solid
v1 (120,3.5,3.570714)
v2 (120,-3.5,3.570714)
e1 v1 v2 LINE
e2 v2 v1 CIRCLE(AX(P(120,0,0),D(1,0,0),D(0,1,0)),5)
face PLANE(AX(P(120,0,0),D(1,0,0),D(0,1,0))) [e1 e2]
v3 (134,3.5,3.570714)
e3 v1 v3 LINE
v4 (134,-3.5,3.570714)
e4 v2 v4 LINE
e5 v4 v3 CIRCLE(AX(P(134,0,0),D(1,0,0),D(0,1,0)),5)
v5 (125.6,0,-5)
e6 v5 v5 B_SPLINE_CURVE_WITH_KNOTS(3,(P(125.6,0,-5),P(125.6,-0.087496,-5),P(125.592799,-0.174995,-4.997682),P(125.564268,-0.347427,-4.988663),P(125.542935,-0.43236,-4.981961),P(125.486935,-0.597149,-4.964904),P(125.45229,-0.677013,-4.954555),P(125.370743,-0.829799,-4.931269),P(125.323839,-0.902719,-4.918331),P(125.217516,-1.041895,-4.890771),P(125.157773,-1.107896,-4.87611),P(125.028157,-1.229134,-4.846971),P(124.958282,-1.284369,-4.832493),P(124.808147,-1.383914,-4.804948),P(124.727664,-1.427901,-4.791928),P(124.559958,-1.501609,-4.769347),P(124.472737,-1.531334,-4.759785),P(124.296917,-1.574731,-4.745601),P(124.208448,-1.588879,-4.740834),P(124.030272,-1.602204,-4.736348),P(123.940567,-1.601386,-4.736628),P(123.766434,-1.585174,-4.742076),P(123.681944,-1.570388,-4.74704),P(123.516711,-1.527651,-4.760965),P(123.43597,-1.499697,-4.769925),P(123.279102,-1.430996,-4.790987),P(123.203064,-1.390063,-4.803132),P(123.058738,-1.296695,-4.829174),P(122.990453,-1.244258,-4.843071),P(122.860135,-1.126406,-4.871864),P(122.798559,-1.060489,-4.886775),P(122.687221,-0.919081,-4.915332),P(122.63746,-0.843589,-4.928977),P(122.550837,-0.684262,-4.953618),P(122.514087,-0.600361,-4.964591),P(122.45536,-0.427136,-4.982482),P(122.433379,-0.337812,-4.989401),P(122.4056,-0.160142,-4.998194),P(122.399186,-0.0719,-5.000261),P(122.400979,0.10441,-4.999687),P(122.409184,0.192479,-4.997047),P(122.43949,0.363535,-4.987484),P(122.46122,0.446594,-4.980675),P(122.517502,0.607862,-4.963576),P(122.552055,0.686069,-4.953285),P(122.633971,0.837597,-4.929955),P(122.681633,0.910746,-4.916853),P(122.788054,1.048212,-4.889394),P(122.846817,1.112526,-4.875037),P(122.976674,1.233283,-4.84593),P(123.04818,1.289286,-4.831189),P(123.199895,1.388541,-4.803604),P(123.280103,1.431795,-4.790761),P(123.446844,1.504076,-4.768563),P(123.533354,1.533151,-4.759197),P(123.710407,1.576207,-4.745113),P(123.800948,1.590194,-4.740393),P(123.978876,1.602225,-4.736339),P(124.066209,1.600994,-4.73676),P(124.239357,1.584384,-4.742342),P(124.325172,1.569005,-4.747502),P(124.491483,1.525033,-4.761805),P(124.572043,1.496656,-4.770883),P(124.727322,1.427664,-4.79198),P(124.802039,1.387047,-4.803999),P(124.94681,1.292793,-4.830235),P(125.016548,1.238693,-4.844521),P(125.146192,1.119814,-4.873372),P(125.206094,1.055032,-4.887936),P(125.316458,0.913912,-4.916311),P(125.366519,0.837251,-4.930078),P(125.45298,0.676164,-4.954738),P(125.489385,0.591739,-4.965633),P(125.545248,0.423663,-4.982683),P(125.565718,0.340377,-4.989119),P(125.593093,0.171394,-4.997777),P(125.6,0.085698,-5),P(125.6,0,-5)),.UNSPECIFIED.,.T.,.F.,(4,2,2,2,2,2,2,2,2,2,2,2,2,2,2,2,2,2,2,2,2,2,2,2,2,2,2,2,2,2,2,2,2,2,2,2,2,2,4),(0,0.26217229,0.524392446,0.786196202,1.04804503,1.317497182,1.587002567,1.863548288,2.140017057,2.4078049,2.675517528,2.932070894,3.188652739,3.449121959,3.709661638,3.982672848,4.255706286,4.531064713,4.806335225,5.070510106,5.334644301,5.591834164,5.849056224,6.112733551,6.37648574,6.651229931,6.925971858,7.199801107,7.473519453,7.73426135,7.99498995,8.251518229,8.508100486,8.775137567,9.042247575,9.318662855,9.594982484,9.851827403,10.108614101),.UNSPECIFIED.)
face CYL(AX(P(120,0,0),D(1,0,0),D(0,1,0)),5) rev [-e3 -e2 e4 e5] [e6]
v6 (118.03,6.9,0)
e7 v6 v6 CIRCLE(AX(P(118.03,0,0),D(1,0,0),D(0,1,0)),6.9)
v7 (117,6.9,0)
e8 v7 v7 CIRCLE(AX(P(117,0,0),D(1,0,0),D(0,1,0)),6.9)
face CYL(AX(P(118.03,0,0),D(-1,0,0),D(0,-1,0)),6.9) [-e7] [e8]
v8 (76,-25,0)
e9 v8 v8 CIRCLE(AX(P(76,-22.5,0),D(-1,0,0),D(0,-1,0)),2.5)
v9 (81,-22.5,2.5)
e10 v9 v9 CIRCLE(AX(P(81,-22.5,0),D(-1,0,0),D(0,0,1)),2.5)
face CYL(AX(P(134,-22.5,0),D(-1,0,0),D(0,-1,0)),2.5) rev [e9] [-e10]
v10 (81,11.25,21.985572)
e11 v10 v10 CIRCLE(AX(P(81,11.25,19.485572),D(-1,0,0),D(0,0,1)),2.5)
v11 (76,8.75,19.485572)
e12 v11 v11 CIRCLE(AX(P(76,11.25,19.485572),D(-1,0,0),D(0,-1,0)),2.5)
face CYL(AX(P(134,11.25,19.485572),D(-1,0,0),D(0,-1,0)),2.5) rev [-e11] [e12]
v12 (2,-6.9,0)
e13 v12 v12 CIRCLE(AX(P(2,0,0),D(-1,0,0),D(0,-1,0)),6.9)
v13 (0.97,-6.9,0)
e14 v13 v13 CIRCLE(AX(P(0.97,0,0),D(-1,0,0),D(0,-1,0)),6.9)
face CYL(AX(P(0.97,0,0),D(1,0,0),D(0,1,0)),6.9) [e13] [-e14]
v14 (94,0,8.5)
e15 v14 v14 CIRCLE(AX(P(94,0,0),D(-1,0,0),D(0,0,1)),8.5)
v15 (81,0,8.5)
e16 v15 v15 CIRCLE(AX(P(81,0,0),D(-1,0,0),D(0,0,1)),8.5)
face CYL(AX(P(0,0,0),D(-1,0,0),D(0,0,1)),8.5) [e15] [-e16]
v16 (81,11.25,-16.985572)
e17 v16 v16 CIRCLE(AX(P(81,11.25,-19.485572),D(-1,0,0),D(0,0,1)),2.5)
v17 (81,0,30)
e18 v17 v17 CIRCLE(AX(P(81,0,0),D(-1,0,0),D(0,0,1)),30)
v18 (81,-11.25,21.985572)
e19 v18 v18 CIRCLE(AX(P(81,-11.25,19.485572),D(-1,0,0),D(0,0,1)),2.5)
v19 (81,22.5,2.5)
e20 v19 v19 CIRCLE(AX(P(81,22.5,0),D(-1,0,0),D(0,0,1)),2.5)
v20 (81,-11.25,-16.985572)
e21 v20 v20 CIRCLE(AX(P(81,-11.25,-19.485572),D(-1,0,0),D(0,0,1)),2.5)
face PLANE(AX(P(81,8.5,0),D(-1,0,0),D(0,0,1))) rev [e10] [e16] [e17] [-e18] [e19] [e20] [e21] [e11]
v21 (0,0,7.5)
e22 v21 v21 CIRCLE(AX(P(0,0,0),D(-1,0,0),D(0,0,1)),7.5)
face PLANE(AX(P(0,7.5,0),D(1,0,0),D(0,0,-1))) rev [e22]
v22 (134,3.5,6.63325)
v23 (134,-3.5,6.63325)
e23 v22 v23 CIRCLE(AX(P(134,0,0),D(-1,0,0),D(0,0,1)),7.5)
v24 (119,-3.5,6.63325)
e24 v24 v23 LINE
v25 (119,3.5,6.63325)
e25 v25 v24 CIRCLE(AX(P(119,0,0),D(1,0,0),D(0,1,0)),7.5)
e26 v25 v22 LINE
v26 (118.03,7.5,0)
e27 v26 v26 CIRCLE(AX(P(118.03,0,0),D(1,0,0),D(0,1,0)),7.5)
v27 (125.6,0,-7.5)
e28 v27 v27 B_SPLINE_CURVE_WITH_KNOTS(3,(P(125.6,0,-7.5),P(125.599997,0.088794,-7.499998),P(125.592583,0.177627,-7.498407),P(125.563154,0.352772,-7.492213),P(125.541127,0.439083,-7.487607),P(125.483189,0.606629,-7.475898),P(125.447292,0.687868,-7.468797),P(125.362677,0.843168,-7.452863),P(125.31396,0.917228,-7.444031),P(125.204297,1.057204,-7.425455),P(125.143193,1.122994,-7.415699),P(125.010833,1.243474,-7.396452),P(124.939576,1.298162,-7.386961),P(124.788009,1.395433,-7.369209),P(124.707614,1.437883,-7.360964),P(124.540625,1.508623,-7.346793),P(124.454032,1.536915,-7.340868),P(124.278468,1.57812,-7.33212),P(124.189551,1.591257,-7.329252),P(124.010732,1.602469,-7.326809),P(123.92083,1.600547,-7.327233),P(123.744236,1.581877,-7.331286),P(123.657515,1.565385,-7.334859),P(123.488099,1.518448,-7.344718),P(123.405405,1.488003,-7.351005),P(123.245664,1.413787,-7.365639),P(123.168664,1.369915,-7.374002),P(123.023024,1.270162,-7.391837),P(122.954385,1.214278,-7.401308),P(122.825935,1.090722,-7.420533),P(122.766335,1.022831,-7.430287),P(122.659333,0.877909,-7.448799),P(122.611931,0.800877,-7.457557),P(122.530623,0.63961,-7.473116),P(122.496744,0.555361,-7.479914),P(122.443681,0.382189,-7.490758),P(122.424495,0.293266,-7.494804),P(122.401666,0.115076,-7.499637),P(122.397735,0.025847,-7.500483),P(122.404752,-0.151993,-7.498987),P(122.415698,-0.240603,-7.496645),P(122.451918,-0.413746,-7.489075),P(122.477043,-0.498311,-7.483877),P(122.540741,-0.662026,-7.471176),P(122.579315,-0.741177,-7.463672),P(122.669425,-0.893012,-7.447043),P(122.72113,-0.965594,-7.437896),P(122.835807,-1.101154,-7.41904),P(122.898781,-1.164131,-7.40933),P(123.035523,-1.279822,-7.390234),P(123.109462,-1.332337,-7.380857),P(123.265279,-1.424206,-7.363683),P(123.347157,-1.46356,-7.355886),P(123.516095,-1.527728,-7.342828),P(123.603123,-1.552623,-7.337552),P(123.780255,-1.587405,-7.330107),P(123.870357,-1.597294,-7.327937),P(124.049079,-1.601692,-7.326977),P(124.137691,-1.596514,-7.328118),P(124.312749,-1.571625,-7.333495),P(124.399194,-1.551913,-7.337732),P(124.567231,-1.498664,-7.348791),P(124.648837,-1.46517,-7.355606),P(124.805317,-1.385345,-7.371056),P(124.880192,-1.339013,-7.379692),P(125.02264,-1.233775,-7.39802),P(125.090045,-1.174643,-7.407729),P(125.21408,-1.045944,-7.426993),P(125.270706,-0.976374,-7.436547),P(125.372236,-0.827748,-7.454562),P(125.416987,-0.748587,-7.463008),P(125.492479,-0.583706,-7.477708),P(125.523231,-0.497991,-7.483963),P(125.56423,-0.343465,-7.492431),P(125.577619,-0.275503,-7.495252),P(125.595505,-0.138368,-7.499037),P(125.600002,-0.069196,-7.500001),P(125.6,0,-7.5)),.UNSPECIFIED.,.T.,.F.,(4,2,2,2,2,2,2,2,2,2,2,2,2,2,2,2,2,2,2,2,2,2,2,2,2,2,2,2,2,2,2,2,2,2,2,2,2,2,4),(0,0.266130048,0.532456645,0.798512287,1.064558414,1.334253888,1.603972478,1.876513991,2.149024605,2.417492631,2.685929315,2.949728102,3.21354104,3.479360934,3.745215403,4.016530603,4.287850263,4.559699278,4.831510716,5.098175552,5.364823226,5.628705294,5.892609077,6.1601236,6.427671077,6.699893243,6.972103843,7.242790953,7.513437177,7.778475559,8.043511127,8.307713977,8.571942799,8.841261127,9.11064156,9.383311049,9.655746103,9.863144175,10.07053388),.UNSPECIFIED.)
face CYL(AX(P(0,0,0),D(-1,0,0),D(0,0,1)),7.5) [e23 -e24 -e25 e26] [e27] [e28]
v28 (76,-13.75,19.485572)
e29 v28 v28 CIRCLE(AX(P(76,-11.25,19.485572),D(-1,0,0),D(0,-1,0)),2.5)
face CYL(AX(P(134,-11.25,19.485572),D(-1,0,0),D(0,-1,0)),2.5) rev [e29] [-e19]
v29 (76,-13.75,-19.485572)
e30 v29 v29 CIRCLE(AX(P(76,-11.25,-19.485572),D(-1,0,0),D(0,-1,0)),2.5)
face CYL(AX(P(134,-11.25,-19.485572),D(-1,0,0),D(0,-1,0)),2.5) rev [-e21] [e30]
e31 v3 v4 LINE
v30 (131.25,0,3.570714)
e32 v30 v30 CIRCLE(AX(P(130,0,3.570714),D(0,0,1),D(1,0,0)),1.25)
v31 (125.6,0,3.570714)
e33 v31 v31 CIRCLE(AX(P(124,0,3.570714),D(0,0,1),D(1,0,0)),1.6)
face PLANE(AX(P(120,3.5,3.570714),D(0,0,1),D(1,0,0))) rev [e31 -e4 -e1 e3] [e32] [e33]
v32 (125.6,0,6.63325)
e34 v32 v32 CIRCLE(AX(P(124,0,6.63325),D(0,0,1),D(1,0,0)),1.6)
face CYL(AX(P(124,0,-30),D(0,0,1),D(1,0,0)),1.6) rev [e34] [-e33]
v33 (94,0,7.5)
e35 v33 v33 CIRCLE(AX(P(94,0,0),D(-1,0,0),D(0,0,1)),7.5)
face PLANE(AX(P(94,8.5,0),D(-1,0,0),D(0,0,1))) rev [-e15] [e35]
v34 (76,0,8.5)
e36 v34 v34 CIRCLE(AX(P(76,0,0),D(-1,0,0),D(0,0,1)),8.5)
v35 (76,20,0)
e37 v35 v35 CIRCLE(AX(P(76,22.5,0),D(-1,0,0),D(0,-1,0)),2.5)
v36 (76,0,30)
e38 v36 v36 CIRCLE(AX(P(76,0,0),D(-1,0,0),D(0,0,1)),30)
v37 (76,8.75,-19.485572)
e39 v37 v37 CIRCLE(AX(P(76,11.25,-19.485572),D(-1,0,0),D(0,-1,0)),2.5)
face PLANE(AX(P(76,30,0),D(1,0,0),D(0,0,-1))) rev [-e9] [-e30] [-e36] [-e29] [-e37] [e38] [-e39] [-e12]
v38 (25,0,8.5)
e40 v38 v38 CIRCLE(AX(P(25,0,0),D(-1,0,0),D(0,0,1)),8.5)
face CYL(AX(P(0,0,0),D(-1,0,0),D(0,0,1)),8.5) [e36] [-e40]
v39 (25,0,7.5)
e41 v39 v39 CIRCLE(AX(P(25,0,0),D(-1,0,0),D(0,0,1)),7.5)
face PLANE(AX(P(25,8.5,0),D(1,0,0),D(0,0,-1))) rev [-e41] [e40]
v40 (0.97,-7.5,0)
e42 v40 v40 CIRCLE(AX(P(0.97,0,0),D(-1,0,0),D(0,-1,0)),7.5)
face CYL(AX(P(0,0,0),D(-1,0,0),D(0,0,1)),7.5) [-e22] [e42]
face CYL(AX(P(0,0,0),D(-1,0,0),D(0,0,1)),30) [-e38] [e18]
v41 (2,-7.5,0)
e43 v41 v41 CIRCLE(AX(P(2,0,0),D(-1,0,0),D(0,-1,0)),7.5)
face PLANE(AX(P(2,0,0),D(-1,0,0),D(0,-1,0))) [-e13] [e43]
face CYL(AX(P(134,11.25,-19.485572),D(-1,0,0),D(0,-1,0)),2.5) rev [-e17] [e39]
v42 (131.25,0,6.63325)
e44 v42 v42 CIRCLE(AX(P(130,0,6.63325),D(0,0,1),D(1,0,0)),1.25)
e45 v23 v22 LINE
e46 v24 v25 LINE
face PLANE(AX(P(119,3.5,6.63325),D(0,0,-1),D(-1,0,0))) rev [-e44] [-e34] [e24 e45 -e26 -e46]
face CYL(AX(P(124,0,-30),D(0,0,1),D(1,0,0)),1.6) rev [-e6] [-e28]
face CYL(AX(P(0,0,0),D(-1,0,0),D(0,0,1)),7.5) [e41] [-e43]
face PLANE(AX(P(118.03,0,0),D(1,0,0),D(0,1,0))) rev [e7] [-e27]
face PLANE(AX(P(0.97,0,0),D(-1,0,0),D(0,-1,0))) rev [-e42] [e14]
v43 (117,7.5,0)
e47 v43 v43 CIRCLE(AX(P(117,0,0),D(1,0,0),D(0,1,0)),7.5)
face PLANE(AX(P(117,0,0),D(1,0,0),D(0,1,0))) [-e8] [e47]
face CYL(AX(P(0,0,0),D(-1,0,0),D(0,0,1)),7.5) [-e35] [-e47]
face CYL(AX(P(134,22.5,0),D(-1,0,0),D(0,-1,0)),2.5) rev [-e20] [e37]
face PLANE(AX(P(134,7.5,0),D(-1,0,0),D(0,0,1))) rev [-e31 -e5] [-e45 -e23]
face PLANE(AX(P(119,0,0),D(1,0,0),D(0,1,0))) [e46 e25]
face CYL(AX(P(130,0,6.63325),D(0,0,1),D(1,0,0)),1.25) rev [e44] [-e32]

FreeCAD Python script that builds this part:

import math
import FreeCAD as App
import Part
import Sketcher
from FreeCAD import Vector


def add_polygon(sketch, points):
    """Adds a closed chain of lines whose ends are joined by coincident constraints."""
    first, n = sketch.GeometryCount, len(points)
    for a, b in zip(points, points[1:] + points[:1]):
        sketch.addGeometry(Part.LineSegment(App.Vector(*a, 0), App.Vector(*b, 0)), False)
    for i in range(n):
        sketch.addConstraint(Sketcher.Constraint("Coincident", first + i, 2, first + (i + 1) % n, 1))

doc = App.newDocument("Part")
params = doc.addObject("Spreadsheet::Sheet", "Params")
for row, (alias, value) in enumerate([
    ("sketch1_width", "134 mm"),
    ("sketch1_width2", "40 mm"),
    ("sketch1_width3", "13 mm"),
    ("sketch1_width4", "5 mm"),
    ("sketch1_width5", "51 mm"),
    ("revolution_angle", "360 deg"),
    ("sketch2_diameter", "5 mm"),
    ("sketch3_radius", "5 mm"),
    ("sketch3_width", "7 mm"),
    ("pocket2_length", "14 mm"),
    ("sketch4_radius", "7.5 mm"),
    ("sketch4_width", "7 mm"),
    ("pocket3_length", "15 mm"),
    ("sketch5_diameter", "3.2 mm"),
    ("sketch6_diameter", "2.5 mm"),
    ("hole_diameter", "2.5 mm"),
    ("hole_depth", "4 mm"),
    ("sketch7_diameter", "15 mm"),
    ("sketch7_diameter2", "13.8 mm"),
    ("pocket5_length", "1.03 mm"),
    ("sketch8_diameter", "15 mm"),
    ("sketch8_diameter2", "13.8 mm"),
    ("pocket6_length", "1.03 mm"),
], start=1):
    params.set(f"A{row}", alias)
    params.set(f"B{row}", "=" + value)
    params.setAlias(f"B{row}", alias)

body = doc.addObject("PartDesign::Body", "Body")

# Sketch on XY plane
sketch1 = body.newObject("Sketcher::SketchObject", "Sketch")
sketch1.AttachmentSupport = (doc.getObject("XY_Plane"), [""])
sketch1.MapMode = "FlatFace"
add_polygon(sketch1, [(0, 0), (134, 0), (134, 7.5), (94, 7.5), (94, 8.5), (81, 8.5), (81, 30), (76, 30), (76, 8.5), (25, 8.5), (25, 7.5), (0, 7.5)])  # lines 0-11
sketch1.addConstraint([
    Sketcher.Constraint("Horizontal", 0),
    Sketcher.Constraint("Vertical", 1),
    Sketcher.Constraint("Horizontal", 2),
    Sketcher.Constraint("Vertical", 3),
    Sketcher.Constraint("Horizontal", 4),
    Sketcher.Constraint("Vertical", 5),
    Sketcher.Constraint("Horizontal", 6),
    Sketcher.Constraint("Vertical", 7),
    Sketcher.Constraint("Horizontal", 8),
    Sketcher.Constraint("Vertical", 9),
    Sketcher.Constraint("Horizontal", 10),
    Sketcher.Constraint("Vertical", 11),
    Sketcher.Constraint("Coincident", 11, 2, -1, 1),
    Sketcher.Constraint("Horizontal", 4, 2, 7, 2),
    Sketcher.Constraint("Horizontal", 2, 2, 9, 2),
    Sketcher.Constraint("DistanceX", 0, 1, 0, 2, 134.0),
    Sketcher.Constraint("DistanceX", 2, 2, 2, 1, 40.0),
    Sketcher.Constraint("DistanceX", 4, 2, 4, 1, 13.0),
    Sketcher.Constraint("DistanceX", 6, 2, 6, 1, 5.0),
    Sketcher.Constraint("DistanceX", 8, 2, 8, 1, 51.0),
    Sketcher.Constraint("DistanceY", 3, 1, 3, 2, 1.0),
    Sketcher.Constraint("DistanceY", 1, 1, 1, 2, 7.5),
    Sketcher.Constraint("DistanceY", 5, 1, 5, 2, 21.5),
])
sketch1.setExpression("Constraints[27]", "Params.sketch1_width")
sketch1.setExpression("Constraints[28]", "Params.sketch1_width2")
sketch1.setExpression("Constraints[29]", "Params.sketch1_width3")
sketch1.setExpression("Constraints[30]", "Params.sketch1_width4")
sketch1.setExpression("Constraints[31]", "Params.sketch1_width5")
revolution = body.newObject("PartDesign::Revolution", "Revolution")
revolution.Profile = sketch1
revolution.ReferenceAxis = (sketch1, ["H_Axis"])
revolution.setExpression("Angle", "Params.revolution_angle")

# Sketch on YZ plane
sketch2 = body.newObject("Sketcher::SketchObject", "Sketch001")
sketch2.AttachmentSupport = (doc.getObject("YZ_Plane"), [""])
sketch2.MapMode = "FlatFace"
sketch2.AttachmentOffset = App.Placement(Vector(0, 0, 76), App.Rotation())
sketch2.addGeometry([
    Part.Circle(Vector(22.5, 0, 0), Vector(0, 0, 1), 2.5),  # 0
    Part.Circle(Vector(11.2, 19.5, 0), Vector(0, 0, 1), 2.5),  # 1
    Part.Circle(Vector(-11.2, 19.5, 0), Vector(0, 0, 1), 2.5),  # 2
    Part.Circle(Vector(-22.5, 0, 0), Vector(0, 0, 1), 2.5),  # 3
    Part.Circle(Vector(-11.2, -19.5, 0), Vector(0, 0, 1), 2.5),  # 4
    Part.Circle(Vector(11.2, -19.5, 0), Vector(0, 0, 1), 2.5),  # 5
], False)
sketch2.addConstraint([
    Sketcher.Constraint("Equal", 0, 1),
    Sketcher.Constraint("Equal", 1, 2),
    Sketcher.Constraint("Equal", 2, 3),
    Sketcher.Constraint("Equal", 3, 4),
    Sketcher.Constraint("Equal", 4, 5),
    Sketcher.Constraint("Symmetric", 0, 3, 3, 3, -1, 1),
    Sketcher.Constraint("Symmetric", 1, 3, 4, 3, -1, 1),
    Sketcher.Constraint("Symmetric", 2, 3, 5, 3, -1, 1),
    Sketcher.Constraint("Symmetric", 1, 3, 2, 3, -2),
    Sketcher.Constraint("PointOnObject", 0, 3, -1),
    Sketcher.Constraint("Diameter", 0, 5.0),
    Sketcher.Constraint("DistanceX", 3, 3, 0, 3, 45.0),
    Sketcher.Constraint("DistanceX", 2, 3, 1, 3, 22.5),
    Sketcher.Constraint("DistanceY", -1, 1, 1, 3, 19.485572),
])
sketch2.setExpression("Constraints[10]", "Params.sketch2_diameter")
pocket1 = body.newObject("PartDesign::Pocket", "Pocket")
pocket1.Profile = sketch2
pocket1.Type = "ThroughAll"
pocket1.Reversed = True

# Sketch on YZ plane
sketch3 = body.newObject("Sketcher::SketchObject", "Sketch002")
sketch3.AttachmentSupport = (doc.getObject("YZ_Plane"), [""])
sketch3.MapMode = "FlatFace"
sketch3.AttachmentOffset = App.Placement(Vector(0, 0, 134), App.Rotation())
sketch3.addGeometry([
    Part.LineSegment(Vector(4, 4, 0), Vector(-4, 4, 0)),
    Part.ArcOfCircle(Part.Circle(Vector(0, 0, 0), Vector(0, 0, 1), 5), math.radians(134), math.radians(406)),
], False)
sketch3.addConstraint([
    Sketcher.Constraint("Coincident", 0, 1, 1, 2),
    Sketcher.Constraint("Coincident", 1, 1, 0, 2),
    Sketcher.Constraint("Horizontal", 0),
    Sketcher.Constraint("Coincident", 1, 3, -1, 1),
    Sketcher.Constraint("Radius", 1, 5.0),
    Sketcher.Constraint("DistanceX", 0, 2, 0, 1, 7.0),
])
sketch3.setExpression("Constraints[4]", "Params.sketch3_radius")
sketch3.setExpression("Constraints[5]", "Params.sketch3_width")
pocket2 = body.newObject("PartDesign::Pocket", "Pocket001")
pocket2.Profile = sketch3
pocket2.setExpression("Length", "Params.pocket2_length")

# Sketch on YZ plane
sketch4 = body.newObject("Sketcher::SketchObject", "Sketch003")
sketch4.AttachmentSupport = (doc.getObject("YZ_Plane"), [""])
sketch4.MapMode = "FlatFace"
sketch4.AttachmentOffset = App.Placement(Vector(0, 0, 119), App.Rotation())
sketch4.addGeometry([
    Part.LineSegment(Vector(-4, 7, 0), Vector(4, 7, 0)),
    Part.ArcOfCircle(Part.Circle(Vector(0, 0, 0), Vector(0, 0, 1), 8), math.radians(62), math.radians(118)),
], False)
sketch4.addConstraint([
    Sketcher.Constraint("Coincident", 0, 1, 1, 2),
    Sketcher.Constraint("Coincident", 1, 1, 0, 2),
    Sketcher.Constraint("Horizontal", 0),
    Sketcher.Constraint("Coincident", 1, 3, -1, 1),
    Sketcher.Constraint("Radius", 1, 7.5),
    Sketcher.Constraint("DistanceX", 0, 1, 0, 2, 7.0),
])
sketch4.setExpression("Constraints[4]", "Params.sketch4_radius")
sketch4.setExpression("Constraints[5]", "Params.sketch4_width")
pocket3 = body.newObject("PartDesign::Pocket", "Pocket002")
pocket3.Profile = sketch4
pocket3.setExpression("Length", "Params.pocket3_length")
pocket3.Reversed = True

# Sketch on XY plane
sketch5 = body.newObject("Sketcher::SketchObject", "Sketch004")
sketch5.AttachmentSupport = (doc.getObject("XY_Plane"), [""])
sketch5.MapMode = "FlatFace"
sketch5.AttachmentOffset = App.Placement(Vector(0, 0, 6.63325), App.Rotation())
sketch5.addGeometry(Part.Circle(Vector(124, 0, 0), Vector(0, 0, 1), 1.6), False)
sketch5.addConstraint([
    Sketcher.Constraint("PointOnObject", 0, 3, -1),
    Sketcher.Constraint("Diameter", 0, 3.2),
    Sketcher.Constraint("DistanceX", -1, 1, 0, 3, 124.0),
])
sketch5.setExpression("Constraints[1]", "Params.sketch5_diameter")
pocket4 = body.newObject("PartDesign::Pocket", "Pocket003")
pocket4.Profile = sketch5
pocket4.Type = "ThroughAll"

# Sketch on XY plane
sketch6 = body.newObject("Sketcher::SketchObject", "Sketch005")
sketch6.AttachmentSupport = (doc.getObject("XY_Plane"), [""])
sketch6.MapMode = "FlatFace"
sketch6.AttachmentOffset = App.Placement(Vector(0, 0, 6.63325), App.Rotation())
sketch6.addGeometry(Part.Circle(Vector(130, 0, 0), Vector(0, 0, 1), 1.2), False)
sketch6.addConstraint([
    Sketcher.Constraint("PointOnObject", 0, 3, -1),
    Sketcher.Constraint("Diameter", 0, 2.5),
    Sketcher.Constraint("DistanceX", -1, 1, 0, 3, 130.0),
])
sketch6.setExpression("Constraints[1]", "Params.sketch6_diameter")
doc.recompute()
hole = body.newObject("PartDesign::Hole", "Hole")
hole.Profile = sketch6
hole.ThreadType = "None"
hole.setExpression("Diameter", "Params.hole_diameter")
hole.DepthType = "Dimension"
hole.setExpression("Depth", "Params.hole_depth")
hole.DrillPoint = "Angled"
hole.DrillPointAngle = 118

# Sketch on YZ plane
sketch7 = body.newObject("Sketcher::SketchObject", "Sketch006")
sketch7.AttachmentSupport = (doc.getObject("YZ_Plane"), [""])
sketch7.MapMode = "FlatFace"
sketch7.AttachmentOffset = App.Placement(Vector(0, 0, 0.97), App.Rotation())
sketch7.addGeometry([
    Part.Circle(Vector(0, 0, 0), Vector(0, 0, 1), 8),
    Part.Circle(Vector(0, 0, 0), Vector(0, 0, 1), 7),
], False)
sketch7.addConstraint([
    Sketcher.Constraint("Coincident", 0, 3, -1, 1),
    Sketcher.Constraint("Coincident", 1, 3, -1, 1),
    Sketcher.Constraint("Diameter", 0, 15.0),
    Sketcher.Constraint("Diameter", 1, 13.8),
])
sketch7.setExpression("Constraints[2]", "Params.sketch7_diameter")
sketch7.setExpression("Constraints[3]", "Params.sketch7_diameter2")
pocket5 = body.newObject("PartDesign::Pocket", "Pocket004")
pocket5.Profile = sketch7
pocket5.setExpression("Length", "Params.pocket5_length")
pocket5.Reversed = True

# Sketch on YZ plane
sketch8 = body.newObject("Sketcher::SketchObject", "Sketch007")
sketch8.AttachmentSupport = (doc.getObject("YZ_Plane"), [""])
sketch8.MapMode = "FlatFace"
sketch8.AttachmentOffset = App.Placement(Vector(0, 0, 117), App.Rotation())
sketch8.addGeometry([
    Part.Circle(Vector(0, 0, 0), Vector(0, 0, 1), 8),
    Part.Circle(Vector(0, 0, 0), Vector(0, 0, 1), 7),
], False)
sketch8.addConstraint([
    Sketcher.Constraint("Coincident", 0, 3, -1, 1),
    Sketcher.Constraint("Coincident", 1, 3, -1, 1),
    Sketcher.Constraint("Diameter", 0, 15.0),
    Sketcher.Constraint("Diameter", 1, 13.8),
])
sketch8.setExpression("Constraints[2]", "Params.sketch8_diameter")
sketch8.setExpression("Constraints[3]", "Params.sketch8_diameter2")
pocket6 = body.newObject("PartDesign::Pocket", "Pocket005")
pocket6.Profile = sketch8
pocket6.setExpression("Length", "Params.pocket6_length")
pocket6.Reversed = True

doc.recompute()
